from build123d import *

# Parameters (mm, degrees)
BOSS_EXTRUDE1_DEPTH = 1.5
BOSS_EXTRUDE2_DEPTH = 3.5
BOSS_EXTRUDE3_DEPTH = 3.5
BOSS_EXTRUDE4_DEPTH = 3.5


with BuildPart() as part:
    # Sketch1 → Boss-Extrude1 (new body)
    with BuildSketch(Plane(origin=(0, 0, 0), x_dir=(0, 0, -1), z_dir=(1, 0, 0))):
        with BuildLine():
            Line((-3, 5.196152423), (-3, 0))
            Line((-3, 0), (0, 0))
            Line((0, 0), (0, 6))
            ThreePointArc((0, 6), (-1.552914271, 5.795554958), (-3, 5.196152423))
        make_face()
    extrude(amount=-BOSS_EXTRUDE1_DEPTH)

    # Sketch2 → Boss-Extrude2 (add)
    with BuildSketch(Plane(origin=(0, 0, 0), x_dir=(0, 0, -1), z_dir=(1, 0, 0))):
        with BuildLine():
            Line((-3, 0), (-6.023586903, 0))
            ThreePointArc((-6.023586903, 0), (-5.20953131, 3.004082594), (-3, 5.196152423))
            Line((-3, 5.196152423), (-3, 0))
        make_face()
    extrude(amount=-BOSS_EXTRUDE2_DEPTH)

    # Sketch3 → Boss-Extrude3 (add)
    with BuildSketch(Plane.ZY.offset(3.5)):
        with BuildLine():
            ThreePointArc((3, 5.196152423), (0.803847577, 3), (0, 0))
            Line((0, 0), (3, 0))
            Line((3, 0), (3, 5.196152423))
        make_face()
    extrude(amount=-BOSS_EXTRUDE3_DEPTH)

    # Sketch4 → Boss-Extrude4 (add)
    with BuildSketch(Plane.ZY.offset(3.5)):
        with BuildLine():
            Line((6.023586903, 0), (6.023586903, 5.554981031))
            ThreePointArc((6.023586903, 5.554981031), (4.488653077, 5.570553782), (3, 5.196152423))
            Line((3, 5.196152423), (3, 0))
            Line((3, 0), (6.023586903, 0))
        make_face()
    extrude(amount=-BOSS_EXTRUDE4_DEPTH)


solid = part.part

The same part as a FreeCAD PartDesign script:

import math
import FreeCAD as App
import Part
import Sketcher
Q = App.Units.Quantity

doc = App.newDocument("Part")
body = doc.addObject("PartDesign::Body", "Body")

sketch1 = body.newObject("Sketcher::SketchObject", "Sketch")
sketch1.AttachmentSupport = (doc.getObject("YZ_Plane"), [""])
sketch1.MapMode = "FlatFace"
sketch1.addGeometry(Part.LineSegment(App.Vector(5.2, 3, 0), App.Vector(0, 3, 0)), False)
sketch1.addGeometry(Part.LineSegment(App.Vector(0, 3, 0), App.Vector(0, 0, 0)), False)
sketch1.addGeometry(Part.LineSegment(App.Vector(0, 0, 0), App.Vector(6, 0, 0)), False)
sketch1.addGeometry(Part.ArcOfCircle(Part.Circle(App.Vector(0, 0, 0), App.Vector(0, 0, 1), 6), math.radians(0), math.radians(30)), False)
sketch1.addConstraint(Sketcher.Constraint("Coincident", 0, 2, 1, 1))
sketch1.addConstraint(Sketcher.Constraint("Coincident", 1, 2, 2, 1))
sketch1.addConstraint(Sketcher.Constraint("Coincident", 2, 2, 3, 1))
sketch1.addConstraint(Sketcher.Constraint("Coincident", 3, 2, 0, 1))
sketch1.addConstraint(Sketcher.Constraint("Horizontal", 0))
sketch1.addConstraint(Sketcher.Constraint("Vertical", 1))
sketch1.addConstraint(Sketcher.Constraint("Horizontal", 2))
sketch1.addConstraint(Sketcher.Constraint("Coincident", 3, 3, -1, 1))
sketch1.addConstraint(Sketcher.Constraint("Coincident", 1, 2, -1, 1))
sketch1.addConstraint(Sketcher.Constraint("Radius", 3, Q("6 mm")))
sketch1.addConstraint(Sketcher.Constraint("DistanceY", 1, 2, 1, 1, Q("3 mm")))
pad1 = body.newObject("PartDesign::Pad", "Pad")
pad1.Profile = sketch1
pad1.Length = 1.5
pad1.Reversed = True

sketch2 = body.newObject("Sketcher::SketchObject", "Sketch001")
sketch2.AttachmentSupport = (doc.getObject("YZ_Plane"), [""])
sketch2.MapMode = "FlatFace"
sketch2.addGeometry(Part.LineSegment(App.Vector(0, 6, 0), App.Vector(0, 3, 0)), False)
sketch2.addGeometry(Part.LineSegment(App.Vector(0, 3, 0), App.Vector(5.2, 3, 0)), False)
sketch2.addGeometry(Part.ArcOfCircle(Part.Circle(App.Vector(0, 0, 0), App.Vector(0, 0, 1), 6), math.radians(30), math.radians(90)), False)
sketch2.addConstraint(Sketcher.Constraint("Coincident", 0, 2, 1, 1))
sketch2.addConstraint(Sketcher.Constraint("Coincident", 1, 2, 2, 1))
sketch2.addConstraint(Sketcher.Constraint("Coincident", 2, 2, 0, 1))
sketch2.addConstraint(Sketcher.Constraint("Vertical", 0))
sketch2.addConstraint(Sketcher.Constraint("Horizontal", 1))
sketch2.addConstraint(Sketcher.Constraint("PointOnObject", 0, 2, -2))
sketch2.addConstraint(Sketcher.Constraint("Radius", 2, Q("6 mm")))
sketch2.addConstraint(Sketcher.Constraint("DistanceY", -1, 1, 0, 2, Q("3 mm")))
sketch2.addConstraint(Sketcher.Constraint("DistanceX", 1, 1, 1, 2, Q("5.196152 mm")))
sketch2.addConstraint(Sketcher.Constraint("DistanceY", 0, 2, 0, 1, Q("3.023587 mm")))
pad2 = body.newObject("PartDesign::Pad", "Pad001")
pad2.Profile = sketch2
pad2.Length = 3.5
pad2.Reversed = True

sketch3 = body.newObject("Sketcher::SketchObject", "Sketch002")
sketch3.AttachmentSupport = (doc.getObject("YZ_Plane"), [""])
sketch3.MapMode = "FlatFace"
sketch3.AttachmentOffset = App.Placement(App.Vector(0, 0, -3.5), App.Rotation())
sketch3.addGeometry(Part.ArcOfCircle(Part.Circle(App.Vector(0, 6, 0), App.Vector(0, 0, 1), 6), math.radians(-90), math.radians(-30)), False)
sketch3.addGeometry(Part.LineSegment(App.Vector(0, 0, 0), App.Vector(0, 3, 0)), False)
sketch3.addGeometry(Part.LineSegment(App.Vector(0, 3, 0), App.Vector(5.2, 3, 0)), False)
sketch3.addConstraint(Sketcher.Constraint("Coincident", 0, 1, 1, 1))
sketch3.addConstraint(Sketcher.Constraint("Coincident", 1, 2, 2, 1))
sketch3.addConstraint(Sketcher.Constraint("Coincident", 2, 2, 0, 2))
sketch3.addConstraint(Sketcher.Constraint("Vertical", 1))
sketch3.addConstraint(Sketcher.Constraint("Horizontal", 2))
sketch3.addConstraint(Sketcher.Constraint("Coincident", 0, 1, -1, 1))
sketch3.addConstraint(Sketcher.Constraint("PointOnObject", 0, 3, -2))
sketch3.addConstraint(Sketcher.Constraint("Radius", 0, Q("6 mm")))
sketch3.addConstraint(Sketcher.Constraint("DistanceY", 1, 1, 1, 2, Q("3 mm")))
pad3 = body.newObject("PartDesign::Pad", "Pad002")
pad3.Profile = sketch3
pad3.Length = 3.5

sketch4 = body.newObject("Sketcher::SketchObject", "Sketch003")
sketch4.AttachmentSupport = (doc.getObject("YZ_Plane"), [""])
sketch4.MapMode = "FlatFace"
sketch4.AttachmentOffset = App.Placement(App.Vector(0, 0, -3.5), App.Rotation())
sketch4.addGeometry(Part.LineSegment(App.Vector(0, 6, 0), App.Vector(5.6, 6, 0)), False)
sketch4.addGeometry(Part.ArcOfCircle(Part.Circle(App.Vector(-0.4, 5.2, 0), App.Vector(0, 0, 1), 6), math.radians(-21), math.radians(8)), False)
sketch4.addGeometry(Part.LineSegment(App.Vector(5.2, 3, 0), App.Vector(0, 3, 0)), False)
sketch4.addGeometry(Part.LineSegment(App.Vector(0, 3, 0), App.Vector(0, 6, 0)), False)
sketch4.addConstraint(Sketcher.Constraint("Coincident", 0, 2, 1, 2))
sketch4.addConstraint(Sketcher.Constraint("Coincident", 1, 1, 2, 1))
sketch4.addConstraint(Sketcher.Constraint("Coincident", 2, 2, 3, 1))
sketch4.addConstraint(Sketcher.Constraint("Coincident", 3, 2, 0, 1))
sketch4.addConstraint(Sketcher.Constraint("Horizontal", 0))
sketch4.addConstraint(Sketcher.Constraint("Horizontal", 2))
sketch4.addConstraint(Sketcher.Constraint("Vertical", 3))
sketch4.addConstraint(Sketcher.Constraint("PointOnObject", 2, 2, -2))
sketch4.addConstraint(Sketcher.Constraint("Radius", 1, Q("6 mm")))
sketch4.addConstraint(Sketcher.Constraint("DistanceY", -1, 1, 1, 1, Q("3 mm")))
sketch4.addConstraint(Sketcher.Constraint("DistanceX", 0, 1, 0, 2, Q("5.554981 mm")))
sketch4.addConstraint(Sketcher.Constraint("DistanceX", 2, 2, 2, 1, Q("5.196152 mm")))
sketch4.addConstraint(Sketcher.Constraint("DistanceY", 3, 1, 3, 2, Q("3.023587 mm")))
pad4 = body.newObject("PartDesign::Pad", "Pad003")
pad4.Profile = sketch4
pad4.Length = 3.5

doc.recompute()
